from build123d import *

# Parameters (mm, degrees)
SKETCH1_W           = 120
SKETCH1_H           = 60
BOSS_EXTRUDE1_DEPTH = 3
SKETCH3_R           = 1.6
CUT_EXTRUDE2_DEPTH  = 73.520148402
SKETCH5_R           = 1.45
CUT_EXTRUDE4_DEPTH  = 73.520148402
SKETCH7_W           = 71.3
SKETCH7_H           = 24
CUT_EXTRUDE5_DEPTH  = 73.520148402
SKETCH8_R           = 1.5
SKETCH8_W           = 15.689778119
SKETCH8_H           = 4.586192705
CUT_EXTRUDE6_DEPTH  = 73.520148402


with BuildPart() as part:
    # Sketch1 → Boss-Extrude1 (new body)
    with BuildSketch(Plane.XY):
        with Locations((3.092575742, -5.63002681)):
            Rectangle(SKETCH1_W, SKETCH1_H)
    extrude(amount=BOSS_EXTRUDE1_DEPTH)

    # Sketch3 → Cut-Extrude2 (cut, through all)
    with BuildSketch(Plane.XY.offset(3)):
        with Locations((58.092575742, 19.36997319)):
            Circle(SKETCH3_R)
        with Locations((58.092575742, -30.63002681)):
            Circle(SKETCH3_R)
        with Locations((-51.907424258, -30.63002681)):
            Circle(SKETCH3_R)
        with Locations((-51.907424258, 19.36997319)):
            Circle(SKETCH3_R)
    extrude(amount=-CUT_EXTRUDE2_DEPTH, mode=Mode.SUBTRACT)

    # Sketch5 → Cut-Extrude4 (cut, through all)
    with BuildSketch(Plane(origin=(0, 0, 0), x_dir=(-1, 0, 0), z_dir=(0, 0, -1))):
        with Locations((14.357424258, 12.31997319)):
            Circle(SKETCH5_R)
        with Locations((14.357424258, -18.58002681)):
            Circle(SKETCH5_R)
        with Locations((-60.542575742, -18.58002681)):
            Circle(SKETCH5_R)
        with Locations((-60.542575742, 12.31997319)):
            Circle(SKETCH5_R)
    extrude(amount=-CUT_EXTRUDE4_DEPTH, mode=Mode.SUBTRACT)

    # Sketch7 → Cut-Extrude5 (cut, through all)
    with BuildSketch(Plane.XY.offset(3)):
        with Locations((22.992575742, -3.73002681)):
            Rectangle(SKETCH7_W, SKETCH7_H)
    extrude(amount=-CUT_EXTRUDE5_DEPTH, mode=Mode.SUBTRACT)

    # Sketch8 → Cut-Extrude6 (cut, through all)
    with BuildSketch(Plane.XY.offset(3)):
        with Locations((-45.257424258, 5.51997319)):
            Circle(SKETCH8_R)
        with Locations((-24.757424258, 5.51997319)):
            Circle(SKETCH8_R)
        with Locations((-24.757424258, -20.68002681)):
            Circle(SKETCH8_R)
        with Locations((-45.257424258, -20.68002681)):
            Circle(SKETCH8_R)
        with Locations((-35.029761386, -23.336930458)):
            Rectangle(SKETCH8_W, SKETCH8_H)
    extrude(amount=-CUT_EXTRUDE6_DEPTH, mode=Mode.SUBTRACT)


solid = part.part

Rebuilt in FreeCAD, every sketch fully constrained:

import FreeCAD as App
import Part
import Sketcher
Q = App.Units.Quantity

doc = App.newDocument("Part")
body = doc.addObject("PartDesign::Body", "Body")

# Sketch on XY plane
sketch1 = body.newObject("Sketcher::SketchObject", "Sketch")
sketch1.AttachmentSupport = (doc.getObject("XY_Plane"), [""])
sketch1.MapMode = "FlatFace"
sketch1.addGeometry([
    Part.LineSegment(App.Vector(-57, 24, 0), App.Vector(-57, -36, 0)),
    Part.LineSegment(App.Vector(-57, -36, 0), App.Vector(63, -36, 0)),
    Part.LineSegment(App.Vector(63, -36, 0), App.Vector(63, 24, 0)),
    Part.LineSegment(App.Vector(63, 24, 0), App.Vector(-57, 24, 0)),
], False)
sketch1.addConstraint([
    Sketcher.Constraint("Coincident", 0, 2, 1, 1),
    Sketcher.Constraint("Coincident", 1, 2, 2, 1),
    Sketcher.Constraint("Coincident", 2, 2, 3, 1),
    Sketcher.Constraint("Coincident", 3, 2, 0, 1),
    Sketcher.Constraint("Vertical", 0),
    Sketcher.Constraint("Horizontal", 1),
    Sketcher.Constraint("Vertical", 2),
    Sketcher.Constraint("Horizontal", 3),
    Sketcher.Constraint("DistanceX", 1, 1, 1, 2, Q("120 mm")),
    Sketcher.Constraint("DistanceY", 0, 2, 0, 1, Q("60 mm")),
    Sketcher.Constraint("DistanceX", 0, 2, -1, 1, Q("56.907424 mm")),
    Sketcher.Constraint("DistanceY", 0, 2, -1, 1, Q("35.630027 mm")),
])
pad1 = body.newObject("PartDesign::Pad", "Pad")
pad1.Profile = sketch1
pad1.Length = 3

# Sketch on XY plane
sketch2 = body.newObject("Sketcher::SketchObject", "Sketch001")
sketch2.AttachmentSupport = (doc.getObject("XY_Plane"), [""])
sketch2.MapMode = "FlatFace"
sketch2.AttachmentOffset = App.Placement(App.Vector(0, 0, 3), App.Rotation())
sketch2.addGeometry([
    Part.Circle(App.Vector(58.1, 19.4, 0), App.Vector(0, 0, 1), 1.6),
    Part.Circle(App.Vector(58.1, -30.6, 0), App.Vector(0, 0, 1), 1.6),
    Part.Circle(App.Vector(-51.9, -30.6, 0), App.Vector(0, 0, 1), 1.6),
    Part.Circle(App.Vector(-51.9, 19.4, 0), App.Vector(0, 0, 1), 1.6),
], False)
sketch2.addConstraint([
    Sketcher.Constraint("Equal", 0, 1),
    Sketcher.Constraint("Equal", 1, 2),
    Sketcher.Constraint("Equal", 2, 3),
    Sketcher.Constraint("Horizontal", 1, 3, 2, 3),
    Sketcher.Constraint("Horizontal", 0, 3, 3, 3),
    Sketcher.Constraint("Vertical", 0, 3, 1, 3),
    Sketcher.Constraint("Vertical", 2, 3, 3, 3),
    Sketcher.Constraint("Diameter", 0, Q("3.2 mm")),
    Sketcher.Constraint("DistanceY", 1, 3, 0, 3, Q("50 mm")),
    Sketcher.Constraint("DistanceX", 2, 3, 1, 3, Q("110 mm")),
    Sketcher.Constraint("DistanceX", -1, 1, 0, 3, Q("58.092576 mm")),
    Sketcher.Constraint("DistanceY", -1, 1, 0, 3, Q("19.369973 mm")),
])
pocket1 = body.newObject("PartDesign::Pocket", "Pocket")
pocket1.Profile = sketch2
pocket1.Type = "ThroughAll"

# Sketch on XY plane
sketch3 = body.newObject("Sketcher::SketchObject", "Sketch002")
sketch3.AttachmentSupport = (doc.getObject("XY_Plane"), [""])
sketch3.MapMode = "FlatFace"
sketch3.addGeometry([
    Part.Circle(App.Vector(-14.4, 12.3, 0), App.Vector(0, 0, 1), 1.4),
    Part.Circle(App.Vector(-14.4, -18.6, 0), App.Vector(0, 0, 1), 1.4),
    Part.Circle(App.Vector(60.5, -18.6, 0), App.Vector(0, 0, 1), 1.4),
    Part.Circle(App.Vector(60.5, 12.3, 0), App.Vector(0, 0, 1), 1.4),
], False)
sketch3.addConstraint([
    Sketcher.Constraint("Equal", 0, 1),
    Sketcher.Constraint("Equal", 1, 2),
    Sketcher.Constraint("Equal", 2, 3),
    Sketcher.Constraint("Horizontal", 1, 3, 2, 3),
    Sketcher.Constraint("Horizontal", 0, 3, 3, 3),
    Sketcher.Constraint("Vertical", 0, 3, 1, 3),
    Sketcher.Constraint("Vertical", 2, 3, 3, 3),
    Sketcher.Constraint("Diameter", 0, Q("2.9 mm")),
    Sketcher.Constraint("DistanceY", 1, 3, 0, 3, Q("30.9 mm")),
    Sketcher.Constraint("DistanceX", 1, 3, 2, 3, Q("74.9 mm")),
    Sketcher.Constraint("DistanceX", 0, 3, -1, 1, Q("14.357424 mm")),
    Sketcher.Constraint("DistanceY", -1, 1, 0, 3, Q("12.319973 mm")),
])
pocket2 = body.newObject("PartDesign::Pocket", "Pocket001")
pocket2.Profile = sketch3
pocket2.Type = "ThroughAll"
pocket2.Reversed = True

# Sketch on XY plane
sketch4 = body.newObject("Sketcher::SketchObject", "Sketch003")
sketch4.AttachmentSupport = (doc.getObject("XY_Plane"), [""])
sketch4.MapMode = "FlatFace"
sketch4.AttachmentOffset = App.Placement(App.Vector(0, 0, 3), App.Rotation())
sketch4.addGeometry([
    Part.LineSegment(App.Vector(-13, 8, 0), App.Vector(-13, -16, 0)),
    Part.LineSegment(App.Vector(-13, -16, 0), App.Vector(59, -16, 0)),
    Part.LineSegment(App.Vector(59, -16, 0), App.Vector(59, 8, 0)),
    Part.LineSegment(App.Vector(59, 8, 0), App.Vector(-13, 8, 0)),
], False)
sketch4.addConstraint([
    Sketcher.Constraint("Coincident", 0, 2, 1, 1),
    Sketcher.Constraint("Coincident", 1, 2, 2, 1),
    Sketcher.Constraint("Coincident", 2, 2, 3, 1),
    Sketcher.Constraint("Coincident", 3, 2, 0, 1),
    Sketcher.Constraint("Vertical", 0),
    Sketcher.Constraint("Horizontal", 1),
    Sketcher.Constraint("Vertical", 2),
    Sketcher.Constraint("Horizontal", 3),
    Sketcher.Constraint("DistanceY", 0, 2, 0, 1, Q("24 mm")),
    Sketcher.Constraint("DistanceX", 1, 1, 1, 2, Q("71.3 mm")),
    Sketcher.Constraint("DistanceX", 0, 2, -1, 1, Q("12.657424 mm")),
    Sketcher.Constraint("DistanceY", 0, 2, -1, 1, Q("15.730027 mm")),
])
pocket3 = body.newObject("PartDesign::Pocket", "Pocket002")
pocket3.Profile = sketch4
pocket3.Type = "ThroughAll"

# Sketch on XY plane
sketch5 = body.newObject("Sketcher::SketchObject", "Sketch004")
sketch5.AttachmentSupport = (doc.getObject("XY_Plane"), [""])
sketch5.MapMode = "FlatFace"
sketch5.AttachmentOffset = App.Placement(App.Vector(0, 0, 3), App.Rotation())
sketch5.addGeometry([
    Part.Circle(App.Vector(-45.3, 5.5, 0), App.Vector(0, 0, 1), 1.5),  # 0
    Part.Circle(App.Vector(-24.8, 5.5, 0), App.Vector(0, 0, 1), 1.5),  # 1
    Part.Circle(App.Vector(-24.8, -20.7, 0), App.Vector(0, 0, 1), 1.5),  # 2
    Part.Circle(App.Vector(-45.3, -20.7, 0), App.Vector(0, 0, 1), 1.5),  # 3
    Part.LineSegment(App.Vector(-42.9, -21, 0), App.Vector(-42.9, -25.6, 0)),  # 4
    Part.LineSegment(App.Vector(-42.9, -25.6, 0), App.Vector(-27.2, -25.6, 0)),  # 5
    Part.LineSegment(App.Vector(-27.2, -25.6, 0), App.Vector(-27.2, -21, 0)),  # 6
    Part.LineSegment(App.Vector(-27.2, -21, 0), App.Vector(-42.9, -21, 0)),  # 7
], False)
sketch5.addConstraint([
    Sketcher.Constraint("Coincident", 4, 2, 5, 1),
    Sketcher.Constraint("Coincident", 5, 2, 6, 1),
    Sketcher.Constraint("Coincident", 6, 2, 7, 1),
    Sketcher.Constraint("Coincident", 7, 2, 4, 1),
    Sketcher.Constraint("Vertical", 4),
    Sketcher.Constraint("Horizontal", 5),
    Sketcher.Constraint("Vertical", 6),
    Sketcher.Constraint("Horizontal", 7),
    Sketcher.Constraint("Equal", 0, 1),
    Sketcher.Constraint("Equal", 1, 2),
    Sketcher.Constraint("Equal", 2, 3),
    Sketcher.Constraint("Horizontal", 0, 3, 1, 3),
    Sketcher.Constraint("Horizontal", 2, 3, 3, 3),
    Sketcher.Constraint("Vertical", 1, 3, 2, 3),
    Sketcher.Constraint("Vertical", 0, 3, 3, 3),
    Sketcher.Constraint("Diameter", 0, Q("3 mm")),
    Sketcher.Constraint("DistanceX", 0, 3, 1, 3, Q("20.5 mm")),
    Sketcher.Constraint("DistanceY", 2, 3, 1, 3, Q("26.2 mm")),
    Sketcher.Constraint("DistanceY", 4, 2, 3, 3, Q("4.95 mm")),
    Sketcher.Constraint("DistanceX", 5, 1, 5, 2, Q("15.689778 mm")),
    Sketcher.Constraint("DistanceY", 4, 2, 4, 1, Q("4.586193 mm")),
    Sketcher.Constraint("DistanceX", 4, 2, -1, 1, Q("42.87465 mm")),
    Sketcher.Constraint("DistanceX", 5, 2, 2, 3, Q("2.427448 mm")),
    Sketcher.Constraint("DistanceY", -1, 1, 0, 3, Q("5.519973 mm")),
])
pocket4 = body.newObject("PartDesign::Pocket", "Pocket003")
pocket4.Profile = sketch5
pocket4.Type = "ThroughAll"

doc.recompute()
